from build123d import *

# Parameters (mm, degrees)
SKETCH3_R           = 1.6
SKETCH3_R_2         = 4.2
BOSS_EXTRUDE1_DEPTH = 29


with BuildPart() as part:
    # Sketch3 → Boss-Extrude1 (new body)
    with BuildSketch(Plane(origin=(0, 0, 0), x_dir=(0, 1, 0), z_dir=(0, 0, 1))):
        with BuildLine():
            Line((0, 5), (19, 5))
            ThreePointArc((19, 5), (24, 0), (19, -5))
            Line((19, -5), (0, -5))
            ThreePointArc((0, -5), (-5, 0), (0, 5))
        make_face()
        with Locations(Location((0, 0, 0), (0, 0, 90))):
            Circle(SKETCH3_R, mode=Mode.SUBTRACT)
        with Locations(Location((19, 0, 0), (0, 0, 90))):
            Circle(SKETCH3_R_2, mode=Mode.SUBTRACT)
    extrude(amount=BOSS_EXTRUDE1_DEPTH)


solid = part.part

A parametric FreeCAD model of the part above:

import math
import FreeCAD as App
import Part
import Sketcher
from FreeCAD import Vector

doc = App.newDocument("Part")
body = doc.addObject("PartDesign::Body", "Body")

sketch1 = body.newObject("Sketcher::SketchObject", "Sketch")
sketch1.AttachmentSupport = (doc.getObject("XY_Plane"), [""])
sketch1.MapMode = "FlatFace"
sketch1.addGeometry(Part.LineSegment(Vector(-5, 19, 0), Vector(-5, 0, 0)), False)
sketch1.addGeometry(Part.ArcOfCircle(Part.Circle(Vector(0, 0, 0), Vector(0, 0, 1), 5), math.radians(180), math.radians(360)), False)
sketch1.addGeometry(Part.LineSegment(Vector(5, 0, 0), Vector(5, 19, 0)), False)
sketch1.addGeometry(Part.ArcOfCircle(Part.Circle(Vector(0, 19, 0), Vector(0, 0, 1), 5), math.radians(0), math.radians(180)), False)
sketch1.addGeometry(Part.Circle(Vector(0, 19, 0), Vector(0, 0, 1), 4.2), False)
sketch1.addGeometry(Part.Circle(Vector(0, 0, 0), Vector(0, 0, 1), 1.6), False)
sketch1.addConstraint(Sketcher.Constraint("Tangent", 0, 2, 1, 1))
sketch1.addConstraint(Sketcher.Constraint("Tangent", 1, 2, 2, 1))
sketch1.addConstraint(Sketcher.Constraint("Tangent", 2, 2, 3, 1))
sketch1.addConstraint(Sketcher.Constraint("Tangent", 3, 2, 0, 1))
sketch1.addConstraint(Sketcher.Constraint("Vertical", 0))
sketch1.addConstraint(Sketcher.Constraint("Vertical", 2))
sketch1.addConstraint(Sketcher.Constraint("Coincident", 1, 3, -1, 1))
sketch1.addConstraint(Sketcher.Constraint("Coincident", 5, 3, -1, 1))
sketch1.addConstraint(Sketcher.Constraint("Coincident", 4, 3, 3, 3))
sketch1.addConstraint(Sketcher.Constraint("Radius", 1, 5.0))
sketch1.addConstraint(Sketcher.Constraint("Diameter", 4, 8.4))
sketch1.addConstraint(Sketcher.Constraint("Diameter", 5, 3.2))
sketch1.addConstraint(Sketcher.Constraint("DistanceY", 0, 2, 0, 1, 19.0))
pad1 = body.newObject("PartDesign::Pad", "Pad")
pad1.Profile = sketch1
pad1.Length = 29

doc.recompute()
